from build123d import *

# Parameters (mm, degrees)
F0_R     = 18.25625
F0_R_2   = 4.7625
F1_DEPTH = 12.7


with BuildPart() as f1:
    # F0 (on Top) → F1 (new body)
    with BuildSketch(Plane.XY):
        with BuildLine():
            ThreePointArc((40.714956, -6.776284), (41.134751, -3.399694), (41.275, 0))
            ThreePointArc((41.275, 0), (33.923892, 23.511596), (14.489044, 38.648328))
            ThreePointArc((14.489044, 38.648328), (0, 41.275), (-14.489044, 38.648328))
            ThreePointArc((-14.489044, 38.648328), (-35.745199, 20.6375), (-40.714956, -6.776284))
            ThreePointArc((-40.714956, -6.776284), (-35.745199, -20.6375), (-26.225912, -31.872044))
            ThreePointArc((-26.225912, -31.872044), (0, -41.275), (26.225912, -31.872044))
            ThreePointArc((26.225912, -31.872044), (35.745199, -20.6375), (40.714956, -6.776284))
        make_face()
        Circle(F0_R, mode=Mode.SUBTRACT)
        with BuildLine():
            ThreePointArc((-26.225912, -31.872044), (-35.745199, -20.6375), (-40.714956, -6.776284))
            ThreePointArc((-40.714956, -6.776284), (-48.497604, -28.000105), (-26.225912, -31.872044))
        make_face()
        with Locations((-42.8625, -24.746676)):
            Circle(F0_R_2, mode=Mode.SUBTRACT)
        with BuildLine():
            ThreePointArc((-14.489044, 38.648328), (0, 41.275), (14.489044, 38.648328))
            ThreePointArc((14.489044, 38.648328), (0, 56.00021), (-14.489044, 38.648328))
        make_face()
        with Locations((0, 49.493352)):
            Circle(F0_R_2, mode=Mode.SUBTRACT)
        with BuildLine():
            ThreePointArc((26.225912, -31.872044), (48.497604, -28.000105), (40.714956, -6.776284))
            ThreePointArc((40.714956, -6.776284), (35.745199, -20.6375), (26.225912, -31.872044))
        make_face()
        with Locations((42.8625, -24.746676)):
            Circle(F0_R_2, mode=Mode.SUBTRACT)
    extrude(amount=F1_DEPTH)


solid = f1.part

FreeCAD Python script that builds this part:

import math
import FreeCAD as App
import Part
import Sketcher
from FreeCAD import Vector
Q = App.Units.Quantity

doc = App.newDocument("Part")
body = doc.addObject("PartDesign::Body", "Body")

sketch1 = body.newObject("Sketcher::SketchObject", "Sketch")
sketch1.AttachmentSupport = (doc.getObject("XY_Plane"), [""])
sketch1.MapMode = "FlatFace"
sketch1.addGeometry([
    Part.ArcOfCircle(Part.Circle(Vector(0, 0, 0), Vector(0, 0, 1), 41.3), math.radians(-9.45), math.radians(0)),
    Part.ArcOfCircle(Part.Circle(Vector(0, 0, 0), Vector(0, 0, 1), 41.3), math.radians(0), math.radians(69)),
    Part.ArcOfCircle(Part.Circle(Vector(0, 41.3, 0), Vector(0, 0, 1), 14.7), math.radians(-10), math.radians(190)),
    Part.ArcOfCircle(Part.Circle(Vector(0, 0, 0), Vector(0, 0, 1), 41.3), math.radians(111), math.radians(189)),
    Part.ArcOfCircle(Part.Circle(Vector(-35.7, -20.6, 0), Vector(0, 0, 1), 14.7), math.radians(110), math.radians(310)),
    Part.ArcOfCircle(Part.Circle(Vector(0, 0, 0), Vector(0, 0, 1), 41.3), math.radians(-129), math.radians(-51)),
    Part.ArcOfCircle(Part.Circle(Vector(35.7, -20.6, 0), Vector(0, 0, 1), 14.7), math.radians(-130), math.radians(70)),
    Part.Circle(Vector(-42.9, -24.7, 0), Vector(0, 0, 1), 4.8),
    Part.Circle(Vector(42.9, -24.7, 0), Vector(0, 0, 1), 4.8),
    Part.Circle(Vector(0, 0, 0), Vector(0, 0, 1), 18.3),
    Part.Circle(Vector(0, 49.5, 0), Vector(0, 0, 1), 4.8),
], False)
sketch1.addConstraint([
    Sketcher.Constraint("Tangent", 0, 2, 1, 1),
    Sketcher.Constraint("Coincident", 1, 2, 2, 1),
    Sketcher.Constraint("Coincident", 2, 2, 3, 1),
    Sketcher.Constraint("Coincident", 3, 2, 4, 1),
    Sketcher.Constraint("Coincident", 4, 2, 5, 1),
    Sketcher.Constraint("Coincident", 5, 2, 6, 1),
    Sketcher.Constraint("Coincident", 6, 2, 0, 1),
    Sketcher.Constraint("Coincident", 1, 3, -1, 1),
    Sketcher.Constraint("Coincident", 3, 3, -1, 1),
    Sketcher.Constraint("Coincident", 5, 3, -1, 1),
    Sketcher.Constraint("Coincident", 9, 3, -1, 1),
    Sketcher.Constraint("Equal", 2, 4),
    Sketcher.Constraint("Equal", 3, 5),
    Sketcher.Constraint("Equal", 4, 6),
    Sketcher.Constraint("Equal", 7, 8),
    Sketcher.Constraint("Equal", 8, 10),
    Sketcher.Constraint("Symmetric", 4, 3, 6, 3, -2),
    Sketcher.Constraint("Symmetric", 7, 3, 8, 3, -2),
    Sketcher.Constraint("Symmetric", 1, 2, 2, 2, -2),
    Sketcher.Constraint("PointOnObject", 10, 3, -2),
    Sketcher.Constraint("PointOnObject", 0, 2, -1),
    Sketcher.Constraint("Diameter", 7, Q("0.375 in")),
    Sketcher.Constraint("Diameter", 9, Q("1.4375 in")),
    Sketcher.Constraint("Radius", 1, Q("1.6250001 in")),
    Sketcher.Constraint("DistanceY", -1, 1, 2, 3, Q("1.625 in")),
    Sketcher.Constraint("DistanceY", 4, 3, -1, 1, Q("0.8125 in")),
    Sketcher.Constraint("DistanceX", 7, 3, -1, 1, Q("1.6875 in")),
    Sketcher.Constraint("Radius", 2, 14.72521),
    Sketcher.Constraint("Radius", 0, 41.274953),
    Sketcher.Constraint("DistanceX", 4, 3, -1, 1, 35.745199),
    Sketcher.Constraint("DistanceY", 7, 3, 0, 3, 24.746669),
    Sketcher.Constraint("DistanceY", 2, 3, 10, 3, 8.218352),
])
pad1 = body.newObject("PartDesign::Pad", "Pad")
pad1.Profile = sketch1
pad1.Length = Q("0.5 in")

doc.recompute()
